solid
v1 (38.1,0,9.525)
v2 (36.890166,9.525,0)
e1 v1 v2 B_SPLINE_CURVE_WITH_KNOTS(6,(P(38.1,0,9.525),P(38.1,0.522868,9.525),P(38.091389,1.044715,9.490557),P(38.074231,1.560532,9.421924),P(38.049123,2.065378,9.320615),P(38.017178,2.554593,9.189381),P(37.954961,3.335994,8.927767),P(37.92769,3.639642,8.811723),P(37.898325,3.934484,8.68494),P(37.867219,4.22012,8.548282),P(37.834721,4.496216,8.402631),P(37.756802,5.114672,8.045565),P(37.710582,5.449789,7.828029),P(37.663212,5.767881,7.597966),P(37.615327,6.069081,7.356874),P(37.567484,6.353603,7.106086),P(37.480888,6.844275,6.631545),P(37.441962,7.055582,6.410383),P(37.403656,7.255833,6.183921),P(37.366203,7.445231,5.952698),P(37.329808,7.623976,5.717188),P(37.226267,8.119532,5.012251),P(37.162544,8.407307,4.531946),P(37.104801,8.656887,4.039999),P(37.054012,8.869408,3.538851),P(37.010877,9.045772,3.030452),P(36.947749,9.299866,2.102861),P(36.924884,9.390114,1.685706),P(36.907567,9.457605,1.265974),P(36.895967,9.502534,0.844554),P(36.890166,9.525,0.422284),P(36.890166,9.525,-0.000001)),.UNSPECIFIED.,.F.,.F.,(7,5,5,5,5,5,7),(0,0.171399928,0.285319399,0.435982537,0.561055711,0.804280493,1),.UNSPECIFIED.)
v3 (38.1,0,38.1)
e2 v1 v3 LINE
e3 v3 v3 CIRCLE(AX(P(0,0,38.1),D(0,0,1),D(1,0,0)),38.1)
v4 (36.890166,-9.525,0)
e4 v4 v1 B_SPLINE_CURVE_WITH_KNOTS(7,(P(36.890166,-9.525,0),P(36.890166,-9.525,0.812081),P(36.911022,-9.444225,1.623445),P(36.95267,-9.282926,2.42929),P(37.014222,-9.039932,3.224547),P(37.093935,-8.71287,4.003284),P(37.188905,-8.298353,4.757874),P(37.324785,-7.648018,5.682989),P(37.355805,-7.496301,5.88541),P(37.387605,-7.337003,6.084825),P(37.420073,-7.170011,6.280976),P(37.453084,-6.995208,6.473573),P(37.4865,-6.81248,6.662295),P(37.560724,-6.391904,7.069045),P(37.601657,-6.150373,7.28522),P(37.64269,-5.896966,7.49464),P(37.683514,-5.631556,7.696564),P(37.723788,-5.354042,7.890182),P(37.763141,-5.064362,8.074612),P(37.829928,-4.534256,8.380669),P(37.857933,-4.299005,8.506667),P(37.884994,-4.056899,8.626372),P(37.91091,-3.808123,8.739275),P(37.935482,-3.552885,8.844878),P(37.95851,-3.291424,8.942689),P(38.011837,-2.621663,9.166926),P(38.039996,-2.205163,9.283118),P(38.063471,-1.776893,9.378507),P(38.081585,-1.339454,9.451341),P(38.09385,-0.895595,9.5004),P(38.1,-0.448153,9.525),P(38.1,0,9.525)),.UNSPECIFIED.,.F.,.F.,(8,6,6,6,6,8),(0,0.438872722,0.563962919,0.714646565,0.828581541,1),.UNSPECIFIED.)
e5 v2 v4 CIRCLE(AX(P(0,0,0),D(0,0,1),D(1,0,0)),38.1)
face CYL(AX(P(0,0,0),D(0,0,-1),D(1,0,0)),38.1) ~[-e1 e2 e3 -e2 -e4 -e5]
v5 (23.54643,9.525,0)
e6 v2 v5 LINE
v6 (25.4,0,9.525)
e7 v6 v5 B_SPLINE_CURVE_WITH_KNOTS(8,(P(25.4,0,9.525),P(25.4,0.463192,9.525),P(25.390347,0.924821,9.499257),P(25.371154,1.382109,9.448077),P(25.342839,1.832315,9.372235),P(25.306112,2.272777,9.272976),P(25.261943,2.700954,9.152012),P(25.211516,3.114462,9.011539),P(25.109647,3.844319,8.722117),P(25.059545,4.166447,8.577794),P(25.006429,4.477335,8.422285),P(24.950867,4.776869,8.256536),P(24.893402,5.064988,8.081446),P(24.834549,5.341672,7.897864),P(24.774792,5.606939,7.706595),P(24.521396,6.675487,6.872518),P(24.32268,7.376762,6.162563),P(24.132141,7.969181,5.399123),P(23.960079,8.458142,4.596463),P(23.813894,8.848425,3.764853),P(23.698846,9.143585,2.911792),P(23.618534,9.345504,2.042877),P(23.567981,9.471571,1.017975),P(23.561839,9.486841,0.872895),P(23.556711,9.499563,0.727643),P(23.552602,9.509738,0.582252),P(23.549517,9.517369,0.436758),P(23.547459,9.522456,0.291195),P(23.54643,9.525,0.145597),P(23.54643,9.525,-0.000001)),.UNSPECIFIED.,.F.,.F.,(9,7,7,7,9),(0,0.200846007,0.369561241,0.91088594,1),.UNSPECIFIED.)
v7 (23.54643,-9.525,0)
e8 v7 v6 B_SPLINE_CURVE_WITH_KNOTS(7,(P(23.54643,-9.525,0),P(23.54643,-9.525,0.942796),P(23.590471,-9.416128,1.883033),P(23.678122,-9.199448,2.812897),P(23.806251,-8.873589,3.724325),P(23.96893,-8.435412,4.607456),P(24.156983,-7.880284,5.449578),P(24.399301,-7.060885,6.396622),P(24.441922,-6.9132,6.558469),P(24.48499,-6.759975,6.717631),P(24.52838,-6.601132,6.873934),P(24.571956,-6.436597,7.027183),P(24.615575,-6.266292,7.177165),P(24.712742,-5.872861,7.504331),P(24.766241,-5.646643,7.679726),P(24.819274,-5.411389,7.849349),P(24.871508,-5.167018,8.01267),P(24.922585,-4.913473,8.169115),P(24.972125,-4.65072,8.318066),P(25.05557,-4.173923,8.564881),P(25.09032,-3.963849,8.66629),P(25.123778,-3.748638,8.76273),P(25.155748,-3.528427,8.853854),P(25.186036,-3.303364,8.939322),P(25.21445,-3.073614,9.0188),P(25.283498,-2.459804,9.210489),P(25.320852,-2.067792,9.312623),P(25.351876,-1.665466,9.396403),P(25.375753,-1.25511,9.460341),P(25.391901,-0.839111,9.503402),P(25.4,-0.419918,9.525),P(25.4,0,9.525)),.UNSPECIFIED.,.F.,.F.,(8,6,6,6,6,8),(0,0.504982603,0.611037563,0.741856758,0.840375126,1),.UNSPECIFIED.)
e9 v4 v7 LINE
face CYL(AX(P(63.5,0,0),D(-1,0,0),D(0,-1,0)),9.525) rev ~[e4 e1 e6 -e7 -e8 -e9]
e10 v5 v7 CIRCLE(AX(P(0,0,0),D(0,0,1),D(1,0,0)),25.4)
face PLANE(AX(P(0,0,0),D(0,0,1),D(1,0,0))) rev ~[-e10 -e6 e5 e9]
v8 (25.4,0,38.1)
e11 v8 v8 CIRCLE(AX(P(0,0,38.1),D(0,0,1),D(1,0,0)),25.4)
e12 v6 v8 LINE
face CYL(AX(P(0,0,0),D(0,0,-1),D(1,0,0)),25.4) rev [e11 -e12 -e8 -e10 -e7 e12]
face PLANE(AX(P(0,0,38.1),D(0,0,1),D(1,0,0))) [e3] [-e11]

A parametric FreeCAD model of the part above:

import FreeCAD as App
import Part
import Sketcher

V = App.Vector
Q = App.Units.Quantity

doc = App.newDocument("Part")
body = doc.addObject("PartDesign::Body", "Body")

# Sketch on XY plane
sketch1 = doc.addObject("Sketcher::SketchObject", "Sketch")
body.addObject(sketch1)
sketch1.AttachmentSupport = (doc.XY_Plane, [""])
sketch1.MapMode = "FlatFace"
sketch1.addGeometry(Part.Circle(V(0, 0, 0), V(0, 0, 1), 38), False)
sketch1.addGeometry(Part.Circle(V(0, 0, 0), V(0, 0, 1), 25), False)
sketch1.addConstraint(Sketcher.Constraint("Coincident", 0, 3, -1, 1))
sketch1.addConstraint(Sketcher.Constraint("Coincident", 1, 3, -1, 1))
sketch1.addConstraint(Sketcher.Constraint("Diameter", 0, Q("3 in")))
sketch1.addConstraint(Sketcher.Constraint("Diameter", 1, Q("2 in")))
pad1 = doc.addObject("PartDesign::Pad", "Pad")
body.addObject(pad1)
pad1.Profile = sketch1
pad1.Length = Q("1.5 in")

# Sketch on YZ plane
sketch2 = doc.addObject("Sketcher::SketchObject", "Sketch001")
body.addObject(sketch2)
sketch2.AttachmentSupport = (doc.YZ_Plane, [""])
sketch2.MapMode = "FlatFace"
sketch2.AttachmentOffset = App.Placement(V(0, 0, 1.5 * 25.4), App.Rotation())
sketch2.addGeometry(Part.Circle(V(0, 0, 0), V(0, 0, 1), 10), False)
sketch2.addConstraint(Sketcher.Constraint("Coincident", 0, 3, -1, 1))
sketch2.addConstraint(Sketcher.Constraint("Diameter", 0, Q("0.75 in")))
doc.recompute()
hole = doc.addObject("PartDesign::Hole", "Hole")
body.addObject(hole)
hole.Profile = sketch2
hole.ThreadType = "None"
hole.Diameter = Q("0.75 in")
hole.DepthType = "Dimension"
hole.Depth = Q("1 in")
hole.DrillPoint = "Flat"

doc.recompute()
